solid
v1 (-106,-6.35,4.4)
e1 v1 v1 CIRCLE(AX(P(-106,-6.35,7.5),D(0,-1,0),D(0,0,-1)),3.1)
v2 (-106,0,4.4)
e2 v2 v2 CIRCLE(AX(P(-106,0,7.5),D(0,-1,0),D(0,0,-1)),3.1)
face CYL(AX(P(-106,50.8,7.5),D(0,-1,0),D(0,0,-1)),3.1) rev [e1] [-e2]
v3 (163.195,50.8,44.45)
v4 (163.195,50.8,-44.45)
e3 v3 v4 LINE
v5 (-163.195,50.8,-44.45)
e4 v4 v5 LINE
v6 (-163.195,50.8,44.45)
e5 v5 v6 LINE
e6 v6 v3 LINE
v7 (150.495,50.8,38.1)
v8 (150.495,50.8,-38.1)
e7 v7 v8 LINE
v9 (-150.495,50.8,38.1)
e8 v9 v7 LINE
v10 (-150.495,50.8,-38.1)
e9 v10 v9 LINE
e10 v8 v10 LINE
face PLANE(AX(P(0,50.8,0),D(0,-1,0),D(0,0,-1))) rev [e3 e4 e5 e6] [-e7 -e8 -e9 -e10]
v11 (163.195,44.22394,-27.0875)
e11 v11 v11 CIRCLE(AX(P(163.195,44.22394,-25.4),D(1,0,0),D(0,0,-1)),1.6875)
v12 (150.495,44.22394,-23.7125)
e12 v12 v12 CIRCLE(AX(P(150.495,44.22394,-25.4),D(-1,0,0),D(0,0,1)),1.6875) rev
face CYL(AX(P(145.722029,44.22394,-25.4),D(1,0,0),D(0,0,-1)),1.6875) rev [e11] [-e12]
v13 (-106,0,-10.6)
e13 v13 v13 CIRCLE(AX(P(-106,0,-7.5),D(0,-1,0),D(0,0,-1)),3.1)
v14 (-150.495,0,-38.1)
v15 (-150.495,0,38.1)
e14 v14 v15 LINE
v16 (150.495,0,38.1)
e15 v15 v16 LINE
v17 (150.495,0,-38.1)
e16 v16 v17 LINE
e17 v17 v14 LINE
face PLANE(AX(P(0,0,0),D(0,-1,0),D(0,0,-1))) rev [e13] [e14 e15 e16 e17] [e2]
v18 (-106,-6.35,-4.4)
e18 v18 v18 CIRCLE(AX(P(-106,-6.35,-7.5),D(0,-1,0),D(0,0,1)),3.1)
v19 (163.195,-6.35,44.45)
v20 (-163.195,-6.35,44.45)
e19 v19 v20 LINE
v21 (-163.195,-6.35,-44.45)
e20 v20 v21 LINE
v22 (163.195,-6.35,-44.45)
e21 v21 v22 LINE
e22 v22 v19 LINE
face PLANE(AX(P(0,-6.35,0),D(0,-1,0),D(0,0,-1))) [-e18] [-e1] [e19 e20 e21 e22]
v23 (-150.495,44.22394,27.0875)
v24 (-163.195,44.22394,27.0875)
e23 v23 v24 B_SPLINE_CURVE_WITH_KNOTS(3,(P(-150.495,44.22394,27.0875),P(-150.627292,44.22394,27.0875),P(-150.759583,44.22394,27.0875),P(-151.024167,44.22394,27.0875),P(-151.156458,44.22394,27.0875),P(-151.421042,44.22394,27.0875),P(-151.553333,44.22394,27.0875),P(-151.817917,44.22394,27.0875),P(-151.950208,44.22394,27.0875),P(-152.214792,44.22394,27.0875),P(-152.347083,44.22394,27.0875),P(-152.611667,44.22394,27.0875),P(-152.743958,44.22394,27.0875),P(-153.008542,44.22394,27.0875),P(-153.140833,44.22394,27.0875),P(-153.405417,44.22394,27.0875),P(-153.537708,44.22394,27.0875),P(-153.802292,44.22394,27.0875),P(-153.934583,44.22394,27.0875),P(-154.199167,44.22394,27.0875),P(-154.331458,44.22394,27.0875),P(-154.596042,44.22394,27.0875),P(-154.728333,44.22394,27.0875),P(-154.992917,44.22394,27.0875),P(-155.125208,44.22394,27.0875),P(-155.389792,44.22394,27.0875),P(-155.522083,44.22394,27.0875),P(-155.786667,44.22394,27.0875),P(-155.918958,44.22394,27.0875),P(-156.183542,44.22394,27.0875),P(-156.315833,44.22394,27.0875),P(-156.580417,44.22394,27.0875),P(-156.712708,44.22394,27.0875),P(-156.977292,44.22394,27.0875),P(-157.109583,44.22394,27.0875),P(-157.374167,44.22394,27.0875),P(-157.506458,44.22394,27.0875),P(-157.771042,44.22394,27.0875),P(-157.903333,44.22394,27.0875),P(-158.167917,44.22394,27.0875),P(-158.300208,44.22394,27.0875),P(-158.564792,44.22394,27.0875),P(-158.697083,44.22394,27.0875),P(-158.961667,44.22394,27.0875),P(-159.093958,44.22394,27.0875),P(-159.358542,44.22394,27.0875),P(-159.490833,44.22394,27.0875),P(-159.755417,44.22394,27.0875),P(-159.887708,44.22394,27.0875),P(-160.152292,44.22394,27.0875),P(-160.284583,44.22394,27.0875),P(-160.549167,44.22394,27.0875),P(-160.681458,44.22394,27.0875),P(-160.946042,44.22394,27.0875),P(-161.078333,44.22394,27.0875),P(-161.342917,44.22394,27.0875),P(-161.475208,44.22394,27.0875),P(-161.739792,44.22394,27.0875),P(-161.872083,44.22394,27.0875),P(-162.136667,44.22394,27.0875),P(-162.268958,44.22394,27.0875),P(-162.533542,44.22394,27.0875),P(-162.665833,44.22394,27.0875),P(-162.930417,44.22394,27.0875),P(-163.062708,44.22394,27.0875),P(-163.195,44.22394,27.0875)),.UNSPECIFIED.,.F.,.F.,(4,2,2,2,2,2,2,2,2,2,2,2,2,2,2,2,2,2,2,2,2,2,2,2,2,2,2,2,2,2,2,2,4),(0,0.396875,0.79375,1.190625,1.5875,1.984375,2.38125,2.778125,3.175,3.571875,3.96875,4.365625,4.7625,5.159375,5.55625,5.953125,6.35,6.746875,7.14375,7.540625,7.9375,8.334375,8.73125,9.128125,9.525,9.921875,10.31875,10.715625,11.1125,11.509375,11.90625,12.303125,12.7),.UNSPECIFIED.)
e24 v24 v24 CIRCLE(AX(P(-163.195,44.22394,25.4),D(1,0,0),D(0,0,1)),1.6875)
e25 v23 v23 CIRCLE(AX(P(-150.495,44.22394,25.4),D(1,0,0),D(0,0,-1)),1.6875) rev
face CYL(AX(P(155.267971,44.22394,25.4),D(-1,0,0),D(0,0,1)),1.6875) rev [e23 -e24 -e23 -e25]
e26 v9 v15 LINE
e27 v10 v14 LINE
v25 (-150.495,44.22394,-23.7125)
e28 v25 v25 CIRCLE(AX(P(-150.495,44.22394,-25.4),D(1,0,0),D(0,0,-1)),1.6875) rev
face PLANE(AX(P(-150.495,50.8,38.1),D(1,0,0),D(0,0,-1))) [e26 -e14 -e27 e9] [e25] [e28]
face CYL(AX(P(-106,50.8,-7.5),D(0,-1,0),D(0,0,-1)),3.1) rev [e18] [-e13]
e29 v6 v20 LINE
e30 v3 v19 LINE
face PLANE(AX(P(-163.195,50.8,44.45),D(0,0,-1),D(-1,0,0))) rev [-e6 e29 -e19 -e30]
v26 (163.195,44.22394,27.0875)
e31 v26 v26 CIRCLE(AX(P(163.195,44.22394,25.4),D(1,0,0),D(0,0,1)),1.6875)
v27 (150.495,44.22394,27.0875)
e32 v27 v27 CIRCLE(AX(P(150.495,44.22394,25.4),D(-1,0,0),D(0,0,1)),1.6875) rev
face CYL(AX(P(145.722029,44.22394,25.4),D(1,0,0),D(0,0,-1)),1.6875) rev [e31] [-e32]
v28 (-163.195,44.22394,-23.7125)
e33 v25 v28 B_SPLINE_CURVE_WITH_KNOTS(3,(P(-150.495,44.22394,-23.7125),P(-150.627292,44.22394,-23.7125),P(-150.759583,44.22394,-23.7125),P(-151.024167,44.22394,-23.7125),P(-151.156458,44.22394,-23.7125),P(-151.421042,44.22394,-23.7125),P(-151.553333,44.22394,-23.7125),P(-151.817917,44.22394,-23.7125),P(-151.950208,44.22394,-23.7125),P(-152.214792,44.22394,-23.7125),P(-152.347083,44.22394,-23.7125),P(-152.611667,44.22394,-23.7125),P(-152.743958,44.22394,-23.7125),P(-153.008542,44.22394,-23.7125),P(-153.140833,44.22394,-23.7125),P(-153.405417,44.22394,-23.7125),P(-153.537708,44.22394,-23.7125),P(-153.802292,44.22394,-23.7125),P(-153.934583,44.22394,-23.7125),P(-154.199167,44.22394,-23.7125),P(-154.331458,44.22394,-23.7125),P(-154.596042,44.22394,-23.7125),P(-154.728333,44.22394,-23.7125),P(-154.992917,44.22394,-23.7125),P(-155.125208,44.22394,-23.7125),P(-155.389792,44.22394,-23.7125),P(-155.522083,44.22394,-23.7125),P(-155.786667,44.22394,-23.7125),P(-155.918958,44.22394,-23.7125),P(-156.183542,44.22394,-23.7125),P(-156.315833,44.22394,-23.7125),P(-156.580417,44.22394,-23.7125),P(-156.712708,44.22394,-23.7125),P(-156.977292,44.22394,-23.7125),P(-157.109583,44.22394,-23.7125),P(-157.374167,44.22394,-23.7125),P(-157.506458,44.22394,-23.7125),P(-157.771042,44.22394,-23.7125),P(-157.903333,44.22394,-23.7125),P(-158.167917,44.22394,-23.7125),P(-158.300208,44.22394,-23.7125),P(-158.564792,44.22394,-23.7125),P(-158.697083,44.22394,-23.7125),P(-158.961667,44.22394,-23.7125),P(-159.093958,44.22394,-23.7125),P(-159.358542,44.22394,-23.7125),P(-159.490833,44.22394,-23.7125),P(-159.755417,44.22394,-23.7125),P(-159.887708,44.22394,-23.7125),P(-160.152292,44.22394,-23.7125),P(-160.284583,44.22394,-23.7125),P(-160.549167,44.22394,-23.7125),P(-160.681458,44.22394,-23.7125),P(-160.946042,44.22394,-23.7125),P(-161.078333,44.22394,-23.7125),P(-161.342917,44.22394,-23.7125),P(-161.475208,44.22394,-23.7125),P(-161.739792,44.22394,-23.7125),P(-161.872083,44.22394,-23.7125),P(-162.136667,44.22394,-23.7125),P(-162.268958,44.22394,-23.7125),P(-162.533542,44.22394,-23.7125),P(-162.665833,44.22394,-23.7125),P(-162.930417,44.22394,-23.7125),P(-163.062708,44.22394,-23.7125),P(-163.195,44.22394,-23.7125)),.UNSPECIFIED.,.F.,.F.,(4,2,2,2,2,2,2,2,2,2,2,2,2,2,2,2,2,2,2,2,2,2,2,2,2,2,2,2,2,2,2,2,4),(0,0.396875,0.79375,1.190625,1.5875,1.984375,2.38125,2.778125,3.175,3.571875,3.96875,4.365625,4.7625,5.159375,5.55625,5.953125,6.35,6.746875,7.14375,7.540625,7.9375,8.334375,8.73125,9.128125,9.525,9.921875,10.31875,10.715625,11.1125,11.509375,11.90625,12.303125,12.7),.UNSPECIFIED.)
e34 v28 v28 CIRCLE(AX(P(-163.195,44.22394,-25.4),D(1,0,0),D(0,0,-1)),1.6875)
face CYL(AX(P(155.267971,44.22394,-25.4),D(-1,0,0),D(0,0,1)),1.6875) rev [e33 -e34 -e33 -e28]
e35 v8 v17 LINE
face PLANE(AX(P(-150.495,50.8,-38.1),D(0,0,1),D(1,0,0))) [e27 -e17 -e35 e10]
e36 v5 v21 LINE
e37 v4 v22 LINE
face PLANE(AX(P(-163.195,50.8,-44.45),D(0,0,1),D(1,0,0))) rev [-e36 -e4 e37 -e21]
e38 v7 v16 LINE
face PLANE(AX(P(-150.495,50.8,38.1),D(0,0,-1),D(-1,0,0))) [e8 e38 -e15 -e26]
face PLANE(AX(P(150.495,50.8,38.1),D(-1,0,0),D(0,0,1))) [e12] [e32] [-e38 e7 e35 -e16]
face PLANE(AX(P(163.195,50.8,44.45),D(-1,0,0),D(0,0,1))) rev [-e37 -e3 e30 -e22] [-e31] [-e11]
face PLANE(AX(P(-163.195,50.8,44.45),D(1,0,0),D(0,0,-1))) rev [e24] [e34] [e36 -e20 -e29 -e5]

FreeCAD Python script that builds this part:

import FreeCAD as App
import Part
import Sketcher
Q = App.Units.Quantity

doc = App.newDocument("Part")
body = doc.addObject("PartDesign::Body", "Body")

# Sketch on XZ plane
sketch1 = doc.addObject("Sketcher::SketchObject", "Sketch")
body.addObject(sketch1)
sketch1.AttachmentSupport = (doc.XZ_Plane, [""])
sketch1.MapMode = "FlatFace"
sketch1.addGeometry([
    Part.LineSegment(App.Vector(-163, -44, 0), App.Vector(-163, 44, 0)),  # 0
    Part.LineSegment(App.Vector(-163, 44, 0), App.Vector(163, 44, 0)),  # 1
    Part.LineSegment(App.Vector(163, 44, 0), App.Vector(163, -44, 0)),  # 2
    Part.LineSegment(App.Vector(163, -44, 0), App.Vector(-163, -44, 0)),  # 3
    Part.LineSegment(App.Vector(150, 38, 0), App.Vector(-150, 38, 0)),  # 4
    Part.LineSegment(App.Vector(-150, 38, 0), App.Vector(-150, -38, 0)),  # 5
    Part.LineSegment(App.Vector(-150, -38, 0), App.Vector(150, -38, 0)),  # 6
    Part.LineSegment(App.Vector(150, -38, 0), App.Vector(150, 38, 0)),  # 7
], False)
sketch1.addConstraint([
    Sketcher.Constraint("Coincident", 0, 2, 1, 1),
    Sketcher.Constraint("Coincident", 1, 2, 2, 1),
    Sketcher.Constraint("Coincident", 2, 2, 3, 1),
    Sketcher.Constraint("Coincident", 3, 2, 0, 1),
    Sketcher.Constraint("Coincident", 4, 2, 5, 1),
    Sketcher.Constraint("Coincident", 5, 2, 6, 1),
    Sketcher.Constraint("Coincident", 6, 2, 7, 1),
    Sketcher.Constraint("Coincident", 7, 2, 4, 1),
    Sketcher.Constraint("Vertical", 0),
    Sketcher.Constraint("Horizontal", 1),
    Sketcher.Constraint("Vertical", 2),
    Sketcher.Constraint("Horizontal", 3),
    Sketcher.Constraint("Horizontal", 4),
    Sketcher.Constraint("Vertical", 5),
    Sketcher.Constraint("Horizontal", 6),
    Sketcher.Constraint("Vertical", 7),
    Sketcher.Constraint("Symmetric", 0, 2, 2, 2, -1, 1),
    Sketcher.Constraint("Symmetric", 4, 2, 6, 2, -1, 1),
    Sketcher.Constraint("DistanceY", 5, 2, 5, 1, Q("3 in")),
    Sketcher.Constraint("DistanceY", 0, 1, 0, 2, Q("3.5 in")),
    Sketcher.Constraint("DistanceX", 1, 1, 1, 2, Q("12.85 in")),
    Sketcher.Constraint("DistanceX", 4, 2, 4, 1, Q("11.85 in")),
])
pad1 = doc.addObject("PartDesign::Pad", "Pad")
body.addObject(pad1)
pad1.Profile = sketch1
pad1.Length = Q("2 in")
pad1.Reversed = True

# Sketch on XZ plane
sketch2 = doc.addObject("Sketcher::SketchObject", "Sketch001")
body.addObject(sketch2)
sketch2.AttachmentSupport = (doc.XZ_Plane, [""])
sketch2.MapMode = "FlatFace"
sketch2.addGeometry([
    Part.LineSegment(App.Vector(-163, 44, 0), App.Vector(-163, -44, 0)),
    Part.LineSegment(App.Vector(-163, -44, 0), App.Vector(163, -44, 0)),
    Part.LineSegment(App.Vector(163, -44, 0), App.Vector(163, 44, 0)),
    Part.LineSegment(App.Vector(163, 44, 0), App.Vector(-163, 44, 0)),
], False)
sketch2.addConstraint([
    Sketcher.Constraint("Coincident", 0, 2, 1, 1),
    Sketcher.Constraint("Coincident", 1, 2, 2, 1),
    Sketcher.Constraint("Coincident", 2, 2, 3, 1),
    Sketcher.Constraint("Coincident", 3, 2, 0, 1),
    Sketcher.Constraint("Vertical", 0),
    Sketcher.Constraint("Horizontal", 1),
    Sketcher.Constraint("Vertical", 2),
    Sketcher.Constraint("Horizontal", 3),
    Sketcher.Constraint("Symmetric", 0, 2, 2, 2, -1, 1),
    Sketcher.Constraint("DistanceY", 0, 2, 0, 1, Q("3.5 in")),
    Sketcher.Constraint("DistanceX", 1, 1, 1, 2, Q("12.85 in")),
])
pad2 = doc.addObject("PartDesign::Pad", "Pad001")
body.addObject(pad2)
pad2.Profile = sketch2
pad2.Length = Q("0.25 in")

# Sketch on XZ plane
sketch3 = doc.addObject("Sketcher::SketchObject", "Sketch002")
body.addObject(sketch3)
sketch3.AttachmentSupport = (doc.XZ_Plane, [""])
sketch3.MapMode = "FlatFace"
sketch3.AttachmentOffset = App.Placement(App.Vector(0, 0, 0.25 * 25.4), App.Rotation())
sketch3.addGeometry([
    Part.Circle(App.Vector(-106, 7.5, 0), App.Vector(0, 0, 1), 3.1),
    Part.Circle(App.Vector(-106, -7.5, 0), App.Vector(0, 0, 1), 3.1),
], False)
sketch3.addConstraint([
    Sketcher.Constraint("Equal", 0, 1),
    Sketcher.Constraint("Symmetric", 0, 3, 1, 3, -1),
    Sketcher.Constraint("Diameter", 0, 6.2),
    Sketcher.Constraint("DistanceX", 0, 3, -1, 1, 106.0),
    Sketcher.Constraint("DistanceY", -1, 1, 0, 3, 7.5),
])
pocket1 = doc.addObject("PartDesign::Pocket", "Pocket")
body.addObject(pocket1)
pocket1.Profile = sketch3
pocket1.Type = "ThroughAll"

# Sketch on YZ plane
sketch4 = doc.addObject("Sketcher::SketchObject", "Sketch003")
body.addObject(sketch4)
sketch4.AttachmentSupport = (doc.YZ_Plane, [""])
sketch4.MapMode = "FlatFace"
sketch4.AttachmentOffset = App.Placement(App.Vector(0, 0, 6.425 * 25.4), App.Rotation())
sketch4.addGeometry([
    Part.Circle(App.Vector(44.2, -25.4, 0), App.Vector(0, 0, 1), 1.7),
    Part.Circle(App.Vector(44.2, 25.4, 0), App.Vector(0, 0, 1), 1.7),
], False)
sketch4.addConstraint([
    Sketcher.Constraint("Equal", 0, 1),
    Sketcher.Constraint("Symmetric", 0, 3, 1, 3, -1),
    Sketcher.Constraint("DistanceY", 0, 3, -1, 1, Q("1 in")),
    Sketcher.Constraint("Diameter", 0, 3.375),
    Sketcher.Constraint("DistanceX", -1, 1, 0, 3, Q("1.7411 in")),
])
pocket2 = doc.addObject("PartDesign::Pocket", "Pocket001")
body.addObject(pocket2)
pocket2.Profile = sketch4
pocket2.Length = Q("12.35 in")
doc.recompute()

mirrored = doc.addObject("PartDesign::Mirrored", "Mirrored")
body.addObject(mirrored)
mirrored.Originals = [pocket2]
mirrored.MirrorPlane = (doc.YZ_Plane, [""])
body.Tip = mirrored

doc.recompute()
